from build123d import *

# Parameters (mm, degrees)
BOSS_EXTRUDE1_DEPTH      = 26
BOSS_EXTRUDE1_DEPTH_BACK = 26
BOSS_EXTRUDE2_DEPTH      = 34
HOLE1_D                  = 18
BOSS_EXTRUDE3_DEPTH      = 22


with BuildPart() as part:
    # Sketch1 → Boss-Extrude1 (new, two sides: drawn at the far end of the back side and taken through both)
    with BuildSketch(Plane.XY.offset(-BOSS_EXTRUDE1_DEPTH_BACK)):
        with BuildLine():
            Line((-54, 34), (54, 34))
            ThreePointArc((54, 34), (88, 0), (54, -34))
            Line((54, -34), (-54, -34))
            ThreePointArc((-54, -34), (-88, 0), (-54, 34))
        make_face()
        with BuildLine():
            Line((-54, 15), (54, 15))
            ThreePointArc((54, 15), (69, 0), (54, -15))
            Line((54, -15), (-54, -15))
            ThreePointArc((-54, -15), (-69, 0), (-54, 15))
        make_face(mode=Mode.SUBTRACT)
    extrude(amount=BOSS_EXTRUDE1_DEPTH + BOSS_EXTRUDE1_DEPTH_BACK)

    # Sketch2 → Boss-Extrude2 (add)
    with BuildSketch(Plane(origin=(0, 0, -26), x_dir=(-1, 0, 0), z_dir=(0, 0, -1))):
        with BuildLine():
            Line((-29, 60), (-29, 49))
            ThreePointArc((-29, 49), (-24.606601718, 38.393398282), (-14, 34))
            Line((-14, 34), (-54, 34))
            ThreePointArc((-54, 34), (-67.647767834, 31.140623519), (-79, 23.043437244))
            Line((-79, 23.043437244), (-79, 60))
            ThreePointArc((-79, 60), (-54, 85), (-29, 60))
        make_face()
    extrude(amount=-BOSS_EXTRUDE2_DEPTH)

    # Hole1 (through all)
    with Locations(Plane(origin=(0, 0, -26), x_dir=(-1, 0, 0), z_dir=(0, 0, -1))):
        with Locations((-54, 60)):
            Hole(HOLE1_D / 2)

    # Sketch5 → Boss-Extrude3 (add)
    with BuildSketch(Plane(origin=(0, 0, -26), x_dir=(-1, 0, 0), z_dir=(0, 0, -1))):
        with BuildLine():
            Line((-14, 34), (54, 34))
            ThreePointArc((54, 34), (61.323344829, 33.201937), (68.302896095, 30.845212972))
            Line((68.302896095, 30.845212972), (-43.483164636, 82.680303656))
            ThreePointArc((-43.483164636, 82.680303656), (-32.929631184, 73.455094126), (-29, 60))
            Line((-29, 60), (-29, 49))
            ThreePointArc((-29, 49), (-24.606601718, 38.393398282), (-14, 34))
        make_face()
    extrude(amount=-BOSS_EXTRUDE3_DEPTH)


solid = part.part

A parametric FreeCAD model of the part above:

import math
import FreeCAD as App
import Part
import Sketcher

V = App.Vector

doc = App.newDocument("Part")
body = doc.addObject("PartDesign::Body", "Body")

# Sketch on XY plane
sketch1 = body.newObject("Sketcher::SketchObject", "Sketch")
sketch1.AttachmentSupport = (doc.getObject("XY_Plane"), [""])
sketch1.MapMode = "FlatFace"
sketch1.addGeometry([
    Part.LineSegment(V(54, 34, 0), V(-54, 34, 0)),  # 0
    Part.ArcOfCircle(Part.Circle(V(-54, 0, 0), V(0, 0, 1), 34), math.radians(90), math.radians(270)),  # 1
    Part.LineSegment(V(-54, -34, 0), V(54, -34, 0)),  # 2
    Part.ArcOfCircle(Part.Circle(V(54, 0, 0), V(0, 0, 1), 34), math.radians(-90), math.radians(90)),  # 3
    Part.LineSegment(V(-54, 15, 0), V(54, 15, 0)),  # 4
    Part.ArcOfCircle(Part.Circle(V(54, 0, 0), V(0, 0, 1), 15), math.radians(-90), math.radians(90)),  # 5
    Part.LineSegment(V(54, -15, 0), V(-54, -15, 0)),  # 6
    Part.ArcOfCircle(Part.Circle(V(-54, 0, 0), V(0, 0, 1), 15), math.radians(90), math.radians(270)),  # 7
], False)
sketch1.addConstraint([
    Sketcher.Constraint("Tangent", 0, 2, 1, 1),
    Sketcher.Constraint("Tangent", 1, 2, 2, 1),
    Sketcher.Constraint("Tangent", 2, 2, 3, 1),
    Sketcher.Constraint("Tangent", 3, 2, 0, 1),
    Sketcher.Constraint("Tangent", 4, 2, 5, 2),
    Sketcher.Constraint("Tangent", 5, 1, 6, 1),
    Sketcher.Constraint("Tangent", 6, 2, 7, 2),
    Sketcher.Constraint("Tangent", 7, 1, 4, 1),
    Sketcher.Constraint("Horizontal", 0),
    Sketcher.Constraint("Horizontal", 2),
    Sketcher.Constraint("Horizontal", 4),
    Sketcher.Constraint("Horizontal", 6),
    Sketcher.Constraint("Coincident", 5, 3, 3, 3),
    Sketcher.Constraint("Symmetric", 1, 3, 3, 3, -1, 1),
    Sketcher.Constraint("Vertical", 7, 3, 0, 2),
    Sketcher.Constraint("Radius", 1, 34.0),
    Sketcher.Constraint("Radius", 5, 15.0),
    Sketcher.Constraint("DistanceX", 0, 2, 0, 1, 108.0),
])
pad1 = body.newObject("PartDesign::Pad", "Pad")
pad1.Profile = sketch1
pad1.Type = "TwoLengths"
pad1.Length = 26
pad1.Length2 = 26

# Sketch on XY plane
sketch2 = body.newObject("Sketcher::SketchObject", "Sketch001")
sketch2.AttachmentSupport = (doc.getObject("XY_Plane"), [""])
sketch2.MapMode = "FlatFace"
sketch2.AttachmentOffset = App.Placement(V(0, 0, -26), App.Rotation())
sketch2.addGeometry([
    Part.LineSegment(V(29, 49, 0), V(29, 60, 0)),  # 0
    Part.ArcOfCircle(Part.Circle(V(54, 60, 0), V(0, 0, 1), 25), math.radians(0), math.radians(180)),  # 1
    Part.LineSegment(V(79, 60, 0), V(79, 23, 0)),  # 2
    Part.ArcOfCircle(Part.Circle(V(54, 0, 0), V(0, 0, 1), 34), math.radians(43), math.radians(90)),  # 3
    Part.LineSegment(V(54, 34, 0), V(14, 34, 0)),  # 4
    Part.ArcOfCircle(Part.Circle(V(14, 49, 0), V(0, 0, 1), 15), math.radians(-90), math.radians(0)),  # 5
], False)
sketch2.addConstraint([
    Sketcher.Constraint("Tangent", 0, 2, 1, 2),
    Sketcher.Constraint("Tangent", 1, 1, 2, 1),
    Sketcher.Constraint("Coincident", 2, 2, 3, 1),
    Sketcher.Constraint("Tangent", 3, 2, 4, 1),
    Sketcher.Constraint("Tangent", 4, 2, 5, 1),
    Sketcher.Constraint("Tangent", 5, 2, 0, 1),
    Sketcher.Constraint("Vertical", 0),
    Sketcher.Constraint("Vertical", 2),
    Sketcher.Constraint("Horizontal", 4),
    Sketcher.Constraint("PointOnObject", 3, 3, -1),
    Sketcher.Constraint("Vertical", 1, 3, 3, 3),
    Sketcher.Constraint("Radius", 1, 25.0),
    Sketcher.Constraint("Radius", 3, 34.0),
    Sketcher.Constraint("Radius", 5, 15.0),
    Sketcher.Constraint("DistanceY", 0, 1, 0, 2, 11.0),
    Sketcher.Constraint("DistanceX", -1, 1, 1, 3, 54.0),
])
pad2 = body.newObject("PartDesign::Pad", "Pad001")
pad2.Profile = sketch2
pad2.Length = 34

# Sketch on XY plane
sketch3 = body.newObject("Sketcher::SketchObject", "Sketch002")
sketch3.AttachmentSupport = (doc.getObject("XY_Plane"), [""])
sketch3.MapMode = "FlatFace"
sketch3.AttachmentOffset = App.Placement(V(0, 0, -26), App.Rotation())
sketch3.addGeometry(Part.Circle(V(54, 60, 0), V(0, 0, 1), 9), False)
sketch3.addConstraint([
    Sketcher.Constraint("Diameter", 0, 18.0),
    Sketcher.Constraint("DistanceX", -1, 1, 0, 3, 54.0),
    Sketcher.Constraint("DistanceY", -1, 1, 0, 3, 60.0),
])
doc.recompute()
hole = body.newObject("PartDesign::Hole", "Hole")
hole.Profile = sketch3
hole.ThreadType = "None"
hole.Diameter = 18
hole.DepthType = "ThroughAll"
hole.Reversed = True

# Sketch on XY plane
sketch4 = body.newObject("Sketcher::SketchObject", "Sketch003")
sketch4.AttachmentSupport = (doc.getObject("XY_Plane"), [""])
sketch4.MapMode = "FlatFace"
sketch4.AttachmentOffset = App.Placement(V(0, 0, -26), App.Rotation())
sketch4.addGeometry([
    Part.LineSegment(V(14, 34, 0), V(-54, 34, 0)),  # 0
    Part.ArcOfCircle(Part.Circle(V(-54, 0, 0), V(0, 0, 1), 34), math.radians(90), math.radians(115)),  # 1
    Part.LineSegment(V(-68, 31, 0), V(43, 83, 0)),  # 2
    Part.ArcOfCircle(Part.Circle(V(54, 60, 0), V(0, 0, 1), 25), math.radians(115), math.radians(180)),  # 3
    Part.LineSegment(V(29, 60, 0), V(29, 49, 0)),  # 4
    Part.ArcOfCircle(Part.Circle(V(14, 49, 0), V(0, 0, 1), 15), math.radians(-90), math.radians(0)),  # 5
], False)
sketch4.addConstraint([
    Sketcher.Constraint("Tangent", 0, 2, 1, 1),
    Sketcher.Constraint("Tangent", 1, 2, 2, 1),
    Sketcher.Constraint("Tangent", 2, 2, 3, 1),
    Sketcher.Constraint("Tangent", 3, 2, 4, 1),
    Sketcher.Constraint("Tangent", 4, 2, 5, 2),
    Sketcher.Constraint("Tangent", 5, 1, 0, 1),
    Sketcher.Constraint("Horizontal", 0),
    Sketcher.Constraint("Vertical", 4),
    Sketcher.Constraint("PointOnObject", 1, 3, -1),
    Sketcher.Constraint("Radius", 1, 34.0),
    Sketcher.Constraint("Radius", 3, 25.0),
    Sketcher.Constraint("Radius", 5, 15.0),
    Sketcher.Constraint("DistanceX", 0, 2, 0, 1, 68.0),
    Sketcher.Constraint("DistanceY", 4, 2, 4, 1, 11.0),
    Sketcher.Constraint("DistanceX", 1, 3, -1, 1, 54.0),
])
pad3 = body.newObject("PartDesign::Pad", "Pad002")
pad3.Profile = sketch4
pad3.Length = 22

doc.recompute()
